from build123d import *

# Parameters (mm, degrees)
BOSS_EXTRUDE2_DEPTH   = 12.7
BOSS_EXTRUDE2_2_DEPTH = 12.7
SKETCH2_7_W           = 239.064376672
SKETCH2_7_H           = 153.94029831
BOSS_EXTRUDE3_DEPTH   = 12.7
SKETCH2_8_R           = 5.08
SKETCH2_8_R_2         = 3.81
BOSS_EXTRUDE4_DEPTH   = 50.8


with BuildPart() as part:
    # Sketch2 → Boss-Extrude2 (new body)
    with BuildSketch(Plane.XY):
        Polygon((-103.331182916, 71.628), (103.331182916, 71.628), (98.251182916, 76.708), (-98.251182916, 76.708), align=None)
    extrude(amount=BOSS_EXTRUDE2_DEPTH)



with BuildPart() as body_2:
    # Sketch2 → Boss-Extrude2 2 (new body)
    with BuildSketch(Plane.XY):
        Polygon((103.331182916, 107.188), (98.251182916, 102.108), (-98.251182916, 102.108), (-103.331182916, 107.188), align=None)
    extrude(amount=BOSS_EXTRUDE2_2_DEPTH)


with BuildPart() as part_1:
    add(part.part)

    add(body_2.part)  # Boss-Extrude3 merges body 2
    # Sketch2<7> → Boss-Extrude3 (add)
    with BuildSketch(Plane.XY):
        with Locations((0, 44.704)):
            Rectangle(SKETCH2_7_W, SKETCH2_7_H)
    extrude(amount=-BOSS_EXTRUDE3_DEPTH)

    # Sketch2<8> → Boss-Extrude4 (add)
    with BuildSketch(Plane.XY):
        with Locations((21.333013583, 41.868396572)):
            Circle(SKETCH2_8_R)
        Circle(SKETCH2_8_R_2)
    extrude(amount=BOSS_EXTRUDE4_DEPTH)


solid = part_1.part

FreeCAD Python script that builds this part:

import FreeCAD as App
import Part
import Sketcher

V = App.Vector
Q = App.Units.Quantity

doc = App.newDocument("Part")
params = doc.addObject("Spreadsheet::Sheet", "Params")
for row, (alias, value) in enumerate([
    ("pad1_length", "0.5 in"),
    ("pad2_length", "0.5 in"),
    ("pad3_length", "0.5 in"),
    ("sketch4_diameter", "0.4 in"),
    ("sketch4_diameter2", "0.3 in"),
    ("pad4_length", "2 in"),
], start=1):
    params.set(f"A{row}", alias)
    params.set(f"B{row}", "=" + value)
    params.setAlias(f"B{row}", alias)

body = doc.addObject("PartDesign::Body", "Body")

# Sketch on XY plane
sketch1 = body.newObject("Sketcher::SketchObject", "Sketch")
sketch1.AttachmentSupport = (doc.getObject("XY_Plane"), [""])
sketch1.MapMode = "FlatFace"
sketch1.addGeometry(Part.LineSegment(V(-103, 72, 0), V(103, 72, 0)), False)
sketch1.addGeometry(Part.LineSegment(V(103, 72, 0), V(98, 77, 0)), False)
sketch1.addGeometry(Part.LineSegment(V(98, 77, 0), V(-98, 77, 0)), False)
sketch1.addGeometry(Part.LineSegment(V(-98, 77, 0), V(-103, 72, 0)), False)
sketch1.addConstraint(Sketcher.Constraint("Coincident", 0, 2, 1, 1))
sketch1.addConstraint(Sketcher.Constraint("Coincident", 1, 2, 2, 1))
sketch1.addConstraint(Sketcher.Constraint("Coincident", 2, 2, 3, 1))
sketch1.addConstraint(Sketcher.Constraint("Coincident", 3, 2, 0, 1))
sketch1.addConstraint(Sketcher.Constraint("Horizontal", 0))
sketch1.addConstraint(Sketcher.Constraint("Horizontal", 2))
sketch1.addConstraint(Sketcher.Constraint("Perpendicular", 1, 3))
sketch1.addConstraint(Sketcher.Constraint("Equal", 1, 3))
sketch1.addConstraint(Sketcher.Constraint("DistanceX", 1, 2, 0, 2, Q("0.2 in")))
sketch1.addConstraint(Sketcher.Constraint("DistanceY", -1, 1, 0, 2, Q("2.82 in")))
sketch1.addConstraint(Sketcher.Constraint("DistanceX", 0, 1, 0, 2, Q("206.662366 mm")))
sketch1.addConstraint(Sketcher.Constraint("DistanceX", -1, 1, 0, 2, Q("103.331183 mm")))
pad1 = body.newObject("PartDesign::Pad", "Pad")
pad1.Profile = sketch1
pad1.setExpression("Length", "Params.pad1_length")
body2 = doc.addObject("PartDesign::Body", "Body001")

# Sketch on XY plane
sketch2 = body2.newObject("Sketcher::SketchObject", "Sketch001")
sketch2.AttachmentSupport = (doc.getObject("XY_Plane001"), [""])
sketch2.MapMode = "FlatFace"
sketch2.addGeometry(Part.LineSegment(V(98, 102, 0), V(103, 107, 0)), False)
sketch2.addGeometry(Part.LineSegment(V(103, 107, 0), V(-103, 107, 0)), False)
sketch2.addGeometry(Part.LineSegment(V(-103, 107, 0), V(-98, 102, 0)), False)
sketch2.addGeometry(Part.LineSegment(V(-98, 102, 0), V(98, 102, 0)), False)
sketch2.addConstraint(Sketcher.Constraint("Coincident", 0, 2, 1, 1))
sketch2.addConstraint(Sketcher.Constraint("Coincident", 1, 2, 2, 1))
sketch2.addConstraint(Sketcher.Constraint("Coincident", 2, 2, 3, 1))
sketch2.addConstraint(Sketcher.Constraint("Coincident", 3, 2, 0, 1))
sketch2.addConstraint(Sketcher.Constraint("Horizontal", 1))
sketch2.addConstraint(Sketcher.Constraint("Horizontal", 3))
sketch2.addConstraint(Sketcher.Constraint("Perpendicular", 0, 2))
sketch2.addConstraint(Sketcher.Constraint("Equal", 0, 2))
sketch2.addConstraint(Sketcher.Constraint("DistanceX", 1, 2, 2, 2, Q("0.2 in")))
sketch2.addConstraint(Sketcher.Constraint("DistanceY", -1, 1, 0, 2, Q("4.22 in")))
sketch2.addConstraint(Sketcher.Constraint("DistanceX", 1, 2, 1, 1, Q("206.662366 mm")))
sketch2.addConstraint(Sketcher.Constraint("DistanceX", -1, 1, 0, 2, Q("103.331183 mm")))
pad2 = body2.newObject("PartDesign::Pad", "Pad001")
pad2.Profile = sketch2
pad2.setExpression("Length", "Params.pad2_length")
body.AllowCompound = True
doc.recompute()

boolean = body.newObject("PartDesign::Boolean", "Boolean")
boolean.Type = "Fuse"
boolean.addObjects([body2])

# Sketch on XY plane
sketch3 = body.newObject("Sketcher::SketchObject", "Sketch002")
sketch3.AttachmentSupport = (doc.getObject("XY_Plane"), [""])
sketch3.MapMode = "FlatFace"
sketch3.addGeometry(Part.LineSegment(V(-120, 122, 0), V(-120, -32, 0)), False)
sketch3.addGeometry(Part.LineSegment(V(-120, -32, 0), V(120, -32, 0)), False)
sketch3.addGeometry(Part.LineSegment(V(120, -32, 0), V(120, 122, 0)), False)
sketch3.addGeometry(Part.LineSegment(V(120, 122, 0), V(-120, 122, 0)), False)
sketch3.addConstraint(Sketcher.Constraint("Coincident", 0, 2, 1, 1))
sketch3.addConstraint(Sketcher.Constraint("Coincident", 1, 2, 2, 1))
sketch3.addConstraint(Sketcher.Constraint("Coincident", 2, 2, 3, 1))
sketch3.addConstraint(Sketcher.Constraint("Coincident", 3, 2, 0, 1))
sketch3.addConstraint(Sketcher.Constraint("Vertical", 0))
sketch3.addConstraint(Sketcher.Constraint("Horizontal", 1))
sketch3.addConstraint(Sketcher.Constraint("Vertical", 2))
sketch3.addConstraint(Sketcher.Constraint("Horizontal", 3))
sketch3.addConstraint(Sketcher.Constraint("DistanceY", 0, 2, 0, 1, Q("153.940298 mm")))
sketch3.addConstraint(Sketcher.Constraint("DistanceX", 1, 1, 1, 2, Q("239.064377 mm")))
sketch3.addConstraint(Sketcher.Constraint("DistanceX", 0, 2, -1, 1, Q("119.532188 mm")))
sketch3.addConstraint(Sketcher.Constraint("DistanceY", 0, 2, -1, 1, Q("32.266149 mm")))
pad3 = body.newObject("PartDesign::Pad", "Pad002")
pad3.Profile = sketch3
pad3.setExpression("Length", "Params.pad3_length")
pad3.Reversed = True

# Sketch on XY plane
sketch4 = body.newObject("Sketcher::SketchObject", "Sketch003")
sketch4.AttachmentSupport = (doc.getObject("XY_Plane"), [""])
sketch4.MapMode = "FlatFace"
sketch4.addGeometry(Part.Circle(V(21.3, 41.9, 0), V(0, 0, 1), 5.1), False)
sketch4.addGeometry(Part.Circle(V(0, 0, 0), V(0, 0, 1), 3.8), False)
sketch4.addConstraint(Sketcher.Constraint("Coincident", 1, 3, -1, 1))
sketch4.addConstraint(Sketcher.Constraint("Diameter", 0, Q("0.4 in")))
sketch4.addConstraint(Sketcher.Constraint("Diameter", 1, Q("0.3 in")))
sketch4.addConstraint(Sketcher.Constraint("DistanceX", -1, 1, 0, 3, Q("21.333014 mm")))
sketch4.addConstraint(Sketcher.Constraint("DistanceY", -1, 1, 0, 3, Q("41.868397 mm")))
sketch4.setExpression("Constraints[1]", "Params.sketch4_diameter")
sketch4.setExpression("Constraints[2]", "Params.sketch4_diameter2")
pad4 = body.newObject("PartDesign::Pad", "Pad003")
pad4.Profile = sketch4
pad4.setExpression("Length", "Params.pad4_length")

doc.recompute()
